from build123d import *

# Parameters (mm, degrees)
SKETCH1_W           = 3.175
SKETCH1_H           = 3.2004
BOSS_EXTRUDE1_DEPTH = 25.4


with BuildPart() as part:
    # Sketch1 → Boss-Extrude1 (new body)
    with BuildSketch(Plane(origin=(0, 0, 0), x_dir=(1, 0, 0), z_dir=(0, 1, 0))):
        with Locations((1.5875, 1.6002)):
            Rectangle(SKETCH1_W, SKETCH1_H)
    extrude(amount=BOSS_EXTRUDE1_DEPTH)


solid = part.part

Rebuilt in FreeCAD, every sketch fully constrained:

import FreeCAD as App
import Part
import Sketcher
from FreeCAD import Vector
Q = App.Units.Quantity

doc = App.newDocument("Part")
params = doc.addObject("Spreadsheet::Sheet", "Params")
for row, (alias, value) in enumerate([
    ("sketch1_width", "0.125 in"),
    ("sketch1_height", "0.126 in"),
    ("pad1_length", "1 in"),
], start=1):
    params.set(f"A{row}", alias)
    params.set(f"B{row}", "=" + value)
    params.setAlias(f"B{row}", alias)

body = doc.addObject("PartDesign::Body", "Body")

# Sketch on XZ plane
sketch1 = body.newObject("Sketcher::SketchObject", "Sketch")
sketch1.AttachmentSupport = (doc.getObject("XZ_Plane"), [""])
sketch1.MapMode = "FlatFace"
sketch1.addGeometry([
    Part.LineSegment(Vector(0, -3.2, 0), Vector(0, 0, 0)),
    Part.LineSegment(Vector(0, 0, 0), Vector(3.2, 0, 0)),
    Part.LineSegment(Vector(3.2, 0, 0), Vector(3.2, -3.2, 0)),
    Part.LineSegment(Vector(3.2, -3.2, 0), Vector(0, -3.2, 0)),
], False)
sketch1.addConstraint([
    Sketcher.Constraint("Coincident", 0, 2, 1, 1),
    Sketcher.Constraint("Coincident", 1, 2, 2, 1),
    Sketcher.Constraint("Coincident", 2, 2, 3, 1),
    Sketcher.Constraint("Coincident", 3, 2, 0, 1),
    Sketcher.Constraint("Vertical", 0),
    Sketcher.Constraint("Horizontal", 1),
    Sketcher.Constraint("Vertical", 2),
    Sketcher.Constraint("Horizontal", 3),
    Sketcher.Constraint("Coincident", 0, 2, -1, 1),
    Sketcher.Constraint("DistanceX", 1, 1, 1, 2, Q("0.125 in")),
    Sketcher.Constraint("DistanceY", 0, 1, 0, 2, Q("0.126 in")),
])
sketch1.setExpression("Constraints[9]", "Params.sketch1_width")
sketch1.setExpression("Constraints[10]", "Params.sketch1_height")
pad1 = body.newObject("PartDesign::Pad", "Pad")
pad1.Profile = sketch1
pad1.setExpression("Length", "Params.pad1_length")
pad1.Reversed = True

doc.recompute()
